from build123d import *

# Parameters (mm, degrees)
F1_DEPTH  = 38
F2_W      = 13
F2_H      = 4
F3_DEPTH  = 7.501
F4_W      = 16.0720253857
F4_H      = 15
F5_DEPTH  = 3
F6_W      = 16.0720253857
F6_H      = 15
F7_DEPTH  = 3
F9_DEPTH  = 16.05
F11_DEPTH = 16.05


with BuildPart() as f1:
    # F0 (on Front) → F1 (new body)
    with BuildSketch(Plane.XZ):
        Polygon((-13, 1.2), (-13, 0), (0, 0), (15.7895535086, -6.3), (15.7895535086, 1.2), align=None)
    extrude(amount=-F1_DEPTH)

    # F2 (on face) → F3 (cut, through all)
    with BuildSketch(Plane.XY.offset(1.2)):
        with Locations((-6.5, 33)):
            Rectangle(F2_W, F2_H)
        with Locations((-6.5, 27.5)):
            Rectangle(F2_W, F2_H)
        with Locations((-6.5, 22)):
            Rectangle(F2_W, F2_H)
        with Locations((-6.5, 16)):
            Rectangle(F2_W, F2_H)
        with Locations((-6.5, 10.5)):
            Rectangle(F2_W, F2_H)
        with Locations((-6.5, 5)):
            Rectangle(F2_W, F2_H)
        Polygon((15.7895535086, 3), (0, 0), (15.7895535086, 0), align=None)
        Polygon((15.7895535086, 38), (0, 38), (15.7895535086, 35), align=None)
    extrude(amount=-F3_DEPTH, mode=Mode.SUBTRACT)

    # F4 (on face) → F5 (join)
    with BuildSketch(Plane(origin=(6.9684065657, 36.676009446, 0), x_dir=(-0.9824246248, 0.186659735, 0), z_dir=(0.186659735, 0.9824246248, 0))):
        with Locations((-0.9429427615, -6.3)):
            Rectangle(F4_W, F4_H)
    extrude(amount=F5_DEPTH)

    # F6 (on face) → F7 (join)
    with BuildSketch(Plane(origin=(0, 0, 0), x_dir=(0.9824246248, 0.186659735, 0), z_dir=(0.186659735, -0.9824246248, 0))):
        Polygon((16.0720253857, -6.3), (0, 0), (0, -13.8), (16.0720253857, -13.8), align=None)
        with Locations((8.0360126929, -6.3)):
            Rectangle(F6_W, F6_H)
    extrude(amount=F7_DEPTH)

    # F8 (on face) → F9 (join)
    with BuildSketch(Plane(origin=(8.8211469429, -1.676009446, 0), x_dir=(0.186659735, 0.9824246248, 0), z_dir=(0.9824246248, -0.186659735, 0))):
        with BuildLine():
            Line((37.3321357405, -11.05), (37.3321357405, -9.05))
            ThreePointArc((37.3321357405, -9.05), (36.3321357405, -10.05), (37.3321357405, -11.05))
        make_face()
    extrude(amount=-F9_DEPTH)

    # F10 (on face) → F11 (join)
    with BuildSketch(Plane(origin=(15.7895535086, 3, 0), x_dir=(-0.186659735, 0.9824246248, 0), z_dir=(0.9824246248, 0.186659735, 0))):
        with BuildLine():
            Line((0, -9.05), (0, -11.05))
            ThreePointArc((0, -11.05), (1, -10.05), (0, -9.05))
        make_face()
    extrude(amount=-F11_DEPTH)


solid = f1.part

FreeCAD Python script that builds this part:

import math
import FreeCAD as App
import Part
import Sketcher

V = App.Vector
Q = App.Units.Quantity

doc = App.newDocument("Part")
body = doc.addObject("PartDesign::Body", "Body")

# Sketch on XZ plane
sketch1 = body.newObject("Sketcher::SketchObject", "Sketch")
sketch1.AttachmentSupport = (doc.getObject("XZ_Plane"), [""])
sketch1.MapMode = "FlatFace"
sketch1.addGeometry([
    Part.LineSegment(V(-13, 1.2, 0), V(-13, 0, 0)),  # 0
    Part.LineSegment(V(-13, 0, 0), V(0, 0, 0)),  # 1
    Part.LineSegment(V(0, 0, 0), V(15.8, -6.3, 0)),  # 2
    Part.LineSegment(V(15.8, -6.3, 0), V(15.8, 1.2, 0)),  # 3
    Part.LineSegment(V(15.8, 1.2, 0), V(-13, 1.2, 0)),  # 4
], False)
sketch1.addConstraint([
    Sketcher.Constraint("Coincident", 0, 2, 1, 1),
    Sketcher.Constraint("Coincident", 1, 2, 2, 1),
    Sketcher.Constraint("Coincident", 2, 2, 3, 1),
    Sketcher.Constraint("Coincident", 3, 2, 4, 1),
    Sketcher.Constraint("Coincident", 4, 2, 0, 1),
    Sketcher.Constraint("Vertical", 0),
    Sketcher.Constraint("Horizontal", 1),
    Sketcher.Constraint("Vertical", 3),
    Sketcher.Constraint("Horizontal", 4),
    Sketcher.Constraint("Coincident", 1, 2, -1, 1),
    Sketcher.Constraint("DistanceX", 1, 1, 1, 2, Q("13 mm")),
    Sketcher.Constraint("Distance", 2, Q("17 mm")),
    Sketcher.Constraint("DistanceY", 0, 2, 0, 1, Q("1.2 mm")),
    Sketcher.Constraint("DistanceY", 3, 1, 3, 2, Q("7.5 mm")),
])
pad1 = body.newObject("PartDesign::Pad", "Pad")
pad1.Profile = sketch1
pad1.Length = 38
pad1.Reversed = True

# Sketch on XY plane
sketch2 = body.newObject("Sketcher::SketchObject", "Sketch001")
sketch2.AttachmentSupport = (doc.getObject("XY_Plane"), [""])
sketch2.MapMode = "FlatFace"
sketch2.AttachmentOffset = App.Placement(V(0, 0, 1.2), App.Rotation())
sketch2.addGeometry([
    Part.LineSegment(V(-13, 35, 0), V(-13, 31, 0)),  # 0
    Part.LineSegment(V(-13, 31, 0), V(0, 31, 0)),  # 1
    Part.LineSegment(V(0, 31, 0), V(0, 35, 0)),  # 2
    Part.LineSegment(V(0, 35, 0), V(-13, 35, 0)),  # 3
    Part.LineSegment(V(-13, 29.5, 0), V(-13, 25.5, 0)),  # 4
    Part.LineSegment(V(-13, 25.5, 0), V(0, 25.5, 0)),  # 5
    Part.LineSegment(V(0, 25.5, 0), V(0, 29.5, 0)),  # 6
    Part.LineSegment(V(0, 29.5, 0), V(-13, 29.5, 0)),  # 7
    Part.LineSegment(V(-13, 24, 0), V(-13, 20, 0)),  # 8
    Part.LineSegment(V(-13, 20, 0), V(0, 20, 0)),  # 9
    Part.LineSegment(V(0, 20, 0), V(0, 24, 0)),  # 10
    Part.LineSegment(V(0, 24, 0), V(-13, 24, 0)),  # 11
    Part.LineSegment(V(-13, 18, 0), V(-13, 14, 0)),  # 12
    Part.LineSegment(V(-13, 14, 0), V(0, 14, 0)),  # 13
    Part.LineSegment(V(0, 14, 0), V(0, 18, 0)),  # 14
    Part.LineSegment(V(0, 18, 0), V(-13, 18, 0)),  # 15
    Part.LineSegment(V(-13, 12.5, 0), V(-13, 8.5, 0)),  # 16
    Part.LineSegment(V(-13, 8.5, 0), V(0, 8.5, 0)),  # 17
    Part.LineSegment(V(0, 8.5, 0), V(0, 12.5, 0)),  # 18
    Part.LineSegment(V(0, 12.5, 0), V(-13, 12.5, 0)),  # 19
    Part.LineSegment(V(-13, 7, 0), V(-13, 3, 0)),  # 20
    Part.LineSegment(V(-13, 3, 0), V(0, 3, 0)),  # 21
    Part.LineSegment(V(0, 3, 0), V(0, 7, 0)),  # 22
    Part.LineSegment(V(0, 7, 0), V(-13, 7, 0)),  # 23
    Part.LineSegment(V(15.8, 3, 0), V(0, 0, 0)),  # 24
    Part.LineSegment(V(0, 0, 0), V(15.8, 0, 0)),  # 25
    Part.LineSegment(V(15.8, 0, 0), V(15.8, 3, 0)),  # 26
    Part.LineSegment(V(15.8, 38, 0), V(0, 38, 0)),  # 27
    Part.LineSegment(V(0, 38, 0), V(15.8, 35, 0)),  # 28
    Part.LineSegment(V(15.8, 35, 0), V(15.8, 38, 0)),  # 29
], False)
sketch2.addConstraint([
    Sketcher.Constraint("Coincident", 0, 2, 1, 1),
    Sketcher.Constraint("Coincident", 1, 2, 2, 1),
    Sketcher.Constraint("Coincident", 2, 2, 3, 1),
    Sketcher.Constraint("Coincident", 3, 2, 0, 1),
    Sketcher.Constraint("Coincident", 4, 2, 5, 1),
    Sketcher.Constraint("Coincident", 5, 2, 6, 1),
    Sketcher.Constraint("Coincident", 6, 2, 7, 1),
    Sketcher.Constraint("Coincident", 7, 2, 4, 1),
    Sketcher.Constraint("Coincident", 8, 2, 9, 1),
    Sketcher.Constraint("Coincident", 9, 2, 10, 1),
    Sketcher.Constraint("Coincident", 10, 2, 11, 1),
    Sketcher.Constraint("Coincident", 11, 2, 8, 1),
    Sketcher.Constraint("Coincident", 12, 2, 13, 1),
    Sketcher.Constraint("Coincident", 13, 2, 14, 1),
    Sketcher.Constraint("Coincident", 14, 2, 15, 1),
    Sketcher.Constraint("Coincident", 15, 2, 12, 1),
    Sketcher.Constraint("Coincident", 16, 2, 17, 1),
    Sketcher.Constraint("Coincident", 17, 2, 18, 1),
    Sketcher.Constraint("Coincident", 18, 2, 19, 1),
    Sketcher.Constraint("Coincident", 19, 2, 16, 1),
    Sketcher.Constraint("Coincident", 20, 2, 21, 1),
    Sketcher.Constraint("Coincident", 21, 2, 22, 1),
    Sketcher.Constraint("Coincident", 22, 2, 23, 1),
    Sketcher.Constraint("Coincident", 23, 2, 20, 1),
    Sketcher.Constraint("Coincident", 24, 2, 25, 1),
    Sketcher.Constraint("Coincident", 25, 2, 26, 1),
    Sketcher.Constraint("Coincident", 26, 2, 24, 1),
    Sketcher.Constraint("Coincident", 27, 2, 28, 1),
    Sketcher.Constraint("Coincident", 28, 2, 29, 1),
    Sketcher.Constraint("Coincident", 29, 2, 27, 1),
    Sketcher.Constraint("Vertical", 0),
    Sketcher.Constraint("Horizontal", 1),
    Sketcher.Constraint("Vertical", 2),
    Sketcher.Constraint("Horizontal", 3),
    Sketcher.Constraint("Vertical", 4),
    Sketcher.Constraint("Horizontal", 5),
    Sketcher.Constraint("Vertical", 6),
    Sketcher.Constraint("Horizontal", 7),
    Sketcher.Constraint("Vertical", 8),
    Sketcher.Constraint("Horizontal", 9),
    Sketcher.Constraint("Vertical", 10),
    Sketcher.Constraint("Horizontal", 11),
    Sketcher.Constraint("Vertical", 12),
    Sketcher.Constraint("Horizontal", 13),
    Sketcher.Constraint("Vertical", 14),
    Sketcher.Constraint("Horizontal", 15),
    Sketcher.Constraint("Vertical", 16),
    Sketcher.Constraint("Horizontal", 17),
    Sketcher.Constraint("Vertical", 18),
    Sketcher.Constraint("Horizontal", 19),
    Sketcher.Constraint("Vertical", 20),
    Sketcher.Constraint("Horizontal", 21),
    Sketcher.Constraint("Vertical", 22),
    Sketcher.Constraint("Horizontal", 23),
    Sketcher.Constraint("Horizontal", 25),
    Sketcher.Constraint("Vertical", 26),
    Sketcher.Constraint("Horizontal", 27),
    Sketcher.Constraint("Vertical", 29),
    Sketcher.Constraint("Coincident", 24, 2, -1, 1),
    Sketcher.Constraint("PointOnObject", 1, 2, -2),
    Sketcher.Constraint("PointOnObject", 5, 2, -2),
    Sketcher.Constraint("PointOnObject", 9, 2, -2),
    Sketcher.Constraint("PointOnObject", 13, 2, -2),
    Sketcher.Constraint("PointOnObject", 17, 2, -2),
    Sketcher.Constraint("PointOnObject", 21, 2, -2),
    Sketcher.Constraint("PointOnObject", 27, 2, -2),
    Sketcher.Constraint("Horizontal", 21, 2, 26, 2),
    Sketcher.Constraint("Horizontal", 3, 2, 28, 2),
    Sketcher.Constraint("Vertical", 3, 2, 4, 2),
    Sketcher.Constraint("Vertical", 7, 2, 8, 2),
    Sketcher.Constraint("Vertical", 11, 2, 12, 2),
    Sketcher.Constraint("Vertical", 15, 2, 16, 2),
    Sketcher.Constraint("Vertical", 19, 2, 20, 2),
    Sketcher.Constraint("Vertical", 26, 2, 28, 2),
    Sketcher.Constraint("Equal", 2, 4),
    Sketcher.Constraint("Equal", 6, 8),
    Sketcher.Constraint("Equal", 10, 12),
    Sketcher.Constraint("Equal", 14, 16),
    Sketcher.Constraint("Equal", 18, 20),
    Sketcher.Constraint("Equal", 26, 29),
    Sketcher.Constraint("DistanceX", 1, 1, 1, 2, Q("13 mm")),
    Sketcher.Constraint("DistanceY", 0, 2, 0, 1, Q("4 mm")),
    Sketcher.Constraint("DistanceY", 26, 1, 26, 2, Q("3 mm")),
    Sketcher.Constraint("DistanceY", -1, 1, 0, 2, Q("31 mm")),
    Sketcher.Constraint("DistanceY", -1, 1, 8, 2, Q("20 mm")),
    Sketcher.Constraint("DistanceY", -1, 1, 12, 2, Q("14 mm")),
    Sketcher.Constraint("DistanceY", -1, 1, 4, 2, Q("25.5 mm")),
    Sketcher.Constraint("DistanceY", -1, 1, 16, 2, Q("8.5 mm")),
    Sketcher.Constraint("DistanceX", 25, 1, 25, 2, Q("15.789554 mm")),
])
pocket1 = body.newObject("PartDesign::Pocket", "Pocket")
pocket1.Profile = sketch2
pocket1.Type = "ThroughAll"

# Sketch on an angled plane
sketch3 = body.newObject("Sketcher::SketchObject", "Sketch002")
sketch3.Placement = App.Placement(V(6.968407, 36.676009, 0), App.Rotation(V(-0.982424625, 0.186659735, 0), V(0, 0, 1), V(0.186659735, 0.982424625, 0), "ZXY"))
sketch3.addGeometry([
    Part.LineSegment(V(-9, 1, 0), V(-9, -14, 0)),
    Part.LineSegment(V(-9, -14, 0), V(7, -14, 0)),
    Part.LineSegment(V(7, -14, 0), V(7, 1, 0)),
    Part.LineSegment(V(7, 1, 0), V(-9, 1, 0)),
], False)
sketch3.addConstraint([
    Sketcher.Constraint("Coincident", 0, 2, 1, 1),
    Sketcher.Constraint("Coincident", 1, 2, 2, 1),
    Sketcher.Constraint("Coincident", 2, 2, 3, 1),
    Sketcher.Constraint("Coincident", 3, 2, 0, 1),
    Sketcher.Constraint("Vertical", 0),
    Sketcher.Constraint("Horizontal", 1),
    Sketcher.Constraint("Vertical", 2),
    Sketcher.Constraint("Horizontal", 3),
    Sketcher.Constraint("DistanceY", 0, 2, 0, 1, Q("15 mm")),
    Sketcher.Constraint("DistanceY", 0, 2, -1, 1, Q("13.8 mm")),
    Sketcher.Constraint("DistanceX", 1, 1, 1, 2, Q("16.072025 mm")),
    Sketcher.Constraint("DistanceX", -1, 1, 1, 2, Q("7.09307 mm")),
])
pad2 = body.newObject("PartDesign::Pad", "Pad001")
pad2.Profile = sketch3
pad2.Length = 3

# Sketch on an angled plane
sketch4 = body.newObject("Sketcher::SketchObject", "Sketch003")
sketch4.Placement = App.Placement(V(0, 0, 0), App.Rotation(V(0.982424625, 0.186659735, 0), V(0, 0, 1), V(0.186659735, -0.982424625, 0), "ZXY"))
sketch4.addGeometry([
    Part.LineSegment(V(0, 0, 0), V(0, -13.8, 0)),  # 0
    Part.LineSegment(V(0, -13.8, 0), V(16.1, -13.8, 0)),  # 1
    Part.LineSegment(V(16.1, -13.8, 0), V(16.1, -6.3, 0)),  # 2
    Part.LineSegment(V(16.1, -6.3, 0), V(16.1, 1.2, 0)),  # 3
    Part.LineSegment(V(16.1, 1.2, 0), V(0, 1.2, 0)),  # 4
    Part.LineSegment(V(0, 1.2, 0), V(0, 0, 0)),  # 5
], False)
sketch4.addConstraint([
    Sketcher.Constraint("Coincident", 0, 2, 1, 1),
    Sketcher.Constraint("Coincident", 1, 2, 2, 1),
    Sketcher.Constraint("Coincident", 2, 2, 3, 1),
    Sketcher.Constraint("Coincident", 3, 2, 4, 1),
    Sketcher.Constraint("Coincident", 4, 2, 5, 1),
    Sketcher.Constraint("Coincident", 5, 2, 0, 1),
    Sketcher.Constraint("Vertical", 0),
    Sketcher.Constraint("Horizontal", 1),
    Sketcher.Constraint("Vertical", 2),
    Sketcher.Constraint("Vertical", 3),
    Sketcher.Constraint("Horizontal", 4),
    Sketcher.Constraint("Vertical", 5),
    Sketcher.Constraint("Coincident", 5, 2, -1, 1),
    Sketcher.Constraint("Equal", 2, 3),
    Sketcher.Constraint("DistanceY", 0, 2, 0, 1, Q("13.8 mm")),
    Sketcher.Constraint("DistanceY", 2, 1, 2, 2, Q("7.5 mm")),
    Sketcher.Constraint("DistanceX", 1, 1, 1, 2, Q("16.072025 mm")),
])
pad3 = body.newObject("PartDesign::Pad", "Pad002")
pad3.Profile = sketch4
pad3.Length = 3

# Sketch on an angled plane
sketch5 = body.newObject("Sketcher::SketchObject", "Sketch004")
sketch5.Placement = App.Placement(V(8.821147, -1.676009, 0), App.Rotation(V(0.186659735, 0.982424625, 0), V(0, 0, 1), V(0.982424625, -0.186659735, 0), "ZXY"))
sketch5.addGeometry([
    Part.LineSegment(V(37.3, -11.1, 0), V(37.3, -9.1, 0)),
    Part.ArcOfCircle(Part.Circle(V(37.3, -10.1, 0), V(0, 0, 1), 1), math.radians(90), math.radians(270)),
], False)
sketch5.addConstraint([
    Sketcher.Constraint("Coincident", 0, 1, 1, 2),
    Sketcher.Constraint("Coincident", 1, 1, 0, 2),
    Sketcher.Constraint("Vertical", 0),
    Sketcher.Constraint("Vertical", 1, 3, 0, 1),
    Sketcher.Constraint("Radius", 1, Q("1 mm")),
    Sketcher.Constraint("DistanceY", 1, 3, -1, 1, Q("10.05 mm")),
    Sketcher.Constraint("DistanceX", -1, 1, 1, 3, Q("37.332136 mm")),
])
pad4 = body.newObject("PartDesign::Pad", "Pad003")
pad4.Profile = sketch5
pad4.Length = 16.05
pad4.Reversed = True

# Sketch on an angled plane
sketch6 = body.newObject("Sketcher::SketchObject", "Sketch005")
sketch6.Placement = App.Placement(V(15.789554, 3, 0), App.Rotation(V(-0.186659735, 0.982424625, 0), V(0, 0, 1), V(0.982424625, 0.186659735, 0), "ZXY"))
sketch6.addGeometry([
    Part.LineSegment(V(0, -9.1, 0), V(0, -11.1, 0)),
    Part.ArcOfCircle(Part.Circle(V(0, -10.1, 0), V(0, 0, 1), 1), math.radians(-90), math.radians(90)),
], False)
sketch6.addConstraint([
    Sketcher.Constraint("Coincident", 0, 1, 1, 2),
    Sketcher.Constraint("Coincident", 1, 1, 0, 2),
    Sketcher.Constraint("Vertical", 0),
    Sketcher.Constraint("PointOnObject", 1, 3, -2),
    Sketcher.Constraint("PointOnObject", 0, 1, -2),
    Sketcher.Constraint("Radius", 1, Q("1 mm")),
    Sketcher.Constraint("DistanceY", 1, 3, -1, 1, Q("10.05 mm")),
])
pad5 = body.newObject("PartDesign::Pad", "Pad004")
pad5.Profile = sketch6
pad5.Length = 16.05
pad5.Reversed = True

doc.recompute()
